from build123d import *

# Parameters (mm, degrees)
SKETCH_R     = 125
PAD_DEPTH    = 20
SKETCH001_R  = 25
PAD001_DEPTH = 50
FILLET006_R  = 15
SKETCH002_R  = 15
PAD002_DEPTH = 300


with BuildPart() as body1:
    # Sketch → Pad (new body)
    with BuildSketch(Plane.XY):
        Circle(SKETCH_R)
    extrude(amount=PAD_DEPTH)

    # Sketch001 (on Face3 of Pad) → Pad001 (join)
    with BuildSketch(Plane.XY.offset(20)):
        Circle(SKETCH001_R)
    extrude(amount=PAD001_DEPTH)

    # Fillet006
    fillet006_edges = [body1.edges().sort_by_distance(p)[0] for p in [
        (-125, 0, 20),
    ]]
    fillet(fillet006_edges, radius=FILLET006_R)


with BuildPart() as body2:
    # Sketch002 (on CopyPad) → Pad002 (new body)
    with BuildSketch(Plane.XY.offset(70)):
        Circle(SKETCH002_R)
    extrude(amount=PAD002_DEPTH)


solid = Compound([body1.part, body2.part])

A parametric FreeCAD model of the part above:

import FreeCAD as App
import Part
import Sketcher
from FreeCAD import Vector


def edges_at(feature, points):
    """Names of the edges that pass closest to the given points."""
    edges = feature.Shape.Edges
    near = lambda p: min(range(len(edges)), key=lambda i: edges[i].distToShape(Part.Vertex(*p))[0])
    return sorted({f"Edge{near(p) + 1}" for p in points})

doc = App.newDocument("Part")
params = doc.addObject("Spreadsheet::Sheet", "Params")
for row, (alias, value) in enumerate([
    ("sketch1_diameter", "250 mm"),
    ("pad1_length", "20 mm"),
    ("sketch2_diameter", "50 mm"),
    ("pad2_length", "50 mm"),
    ("fillet_radius", "15 mm"),
    ("sketch3_diameter", "30 mm"),
    ("pad3_length", "300 mm"),
], start=1):
    params.set(f"A{row}", alias)
    params.set(f"B{row}", "=" + value)
    params.setAlias(f"B{row}", alias)

body = doc.addObject("PartDesign::Body", "Body")

sketch1 = body.newObject("Sketcher::SketchObject", "Sketch")
sketch1.AttachmentSupport = (doc.getObject("XY_Plane"), [""])
sketch1.MapMode = "FlatFace"
sketch1.addGeometry(Part.Circle(Vector(0, 0, 0), Vector(0, 0, 1), 125), False)
sketch1.addConstraint(Sketcher.Constraint("Coincident", 0, 3, -1, 1))
sketch1.addConstraint(Sketcher.Constraint("Diameter", 0, 250.0))
sketch1.setExpression("Constraints[1]", "Params.sketch1_diameter")
pad1 = body.newObject("PartDesign::Pad", "Pad")
pad1.Profile = sketch1
pad1.setExpression("Length", "Params.pad1_length")

sketch2 = body.newObject("Sketcher::SketchObject", "Sketch001")
sketch2.AttachmentSupport = (doc.getObject("XY_Plane"), [""])
sketch2.MapMode = "FlatFace"
sketch2.AttachmentOffset = App.Placement(Vector(0, 0, 20), App.Rotation())
sketch2.addGeometry(Part.Circle(Vector(0, 0, 0), Vector(0, 0, 1), 25), False)
sketch2.addConstraint(Sketcher.Constraint("Coincident", 0, 3, -1, 1))
sketch2.addConstraint(Sketcher.Constraint("Diameter", 0, 50.0))
sketch2.setExpression("Constraints[1]", "Params.sketch2_diameter")
pad2 = body.newObject("PartDesign::Pad", "Pad001")
pad2.Profile = sketch2
pad2.setExpression("Length", "Params.pad2_length")
doc.recompute()

fillet = body.newObject("PartDesign::Fillet", "Fillet")
fillet.Base = (pad2, edges_at(pad2, [(-125, 0, 20)]))
fillet.setExpression("Radius", "Params.fillet_radius")
body2 = doc.addObject("PartDesign::Body", "Body001")

sketch3 = body2.newObject("Sketcher::SketchObject", "Sketch002")
sketch3.AttachmentSupport = (doc.getObject("XY_Plane001"), [""])
sketch3.MapMode = "FlatFace"
sketch3.AttachmentOffset = App.Placement(Vector(0, 0, 70), App.Rotation())
sketch3.addGeometry(Part.Circle(Vector(0, 0, 0), Vector(0, 0, 1), 15), False)
sketch3.addConstraint(Sketcher.Constraint("Coincident", 0, 3, -1, 1))
sketch3.addConstraint(Sketcher.Constraint("Diameter", 0, 30.0))
sketch3.setExpression("Constraints[1]", "Params.sketch3_diameter")
pad3 = body2.newObject("PartDesign::Pad", "Pad002")
pad3.Profile = sketch3
pad3.setExpression("Length", "Params.pad3_length")

doc.recompute()
